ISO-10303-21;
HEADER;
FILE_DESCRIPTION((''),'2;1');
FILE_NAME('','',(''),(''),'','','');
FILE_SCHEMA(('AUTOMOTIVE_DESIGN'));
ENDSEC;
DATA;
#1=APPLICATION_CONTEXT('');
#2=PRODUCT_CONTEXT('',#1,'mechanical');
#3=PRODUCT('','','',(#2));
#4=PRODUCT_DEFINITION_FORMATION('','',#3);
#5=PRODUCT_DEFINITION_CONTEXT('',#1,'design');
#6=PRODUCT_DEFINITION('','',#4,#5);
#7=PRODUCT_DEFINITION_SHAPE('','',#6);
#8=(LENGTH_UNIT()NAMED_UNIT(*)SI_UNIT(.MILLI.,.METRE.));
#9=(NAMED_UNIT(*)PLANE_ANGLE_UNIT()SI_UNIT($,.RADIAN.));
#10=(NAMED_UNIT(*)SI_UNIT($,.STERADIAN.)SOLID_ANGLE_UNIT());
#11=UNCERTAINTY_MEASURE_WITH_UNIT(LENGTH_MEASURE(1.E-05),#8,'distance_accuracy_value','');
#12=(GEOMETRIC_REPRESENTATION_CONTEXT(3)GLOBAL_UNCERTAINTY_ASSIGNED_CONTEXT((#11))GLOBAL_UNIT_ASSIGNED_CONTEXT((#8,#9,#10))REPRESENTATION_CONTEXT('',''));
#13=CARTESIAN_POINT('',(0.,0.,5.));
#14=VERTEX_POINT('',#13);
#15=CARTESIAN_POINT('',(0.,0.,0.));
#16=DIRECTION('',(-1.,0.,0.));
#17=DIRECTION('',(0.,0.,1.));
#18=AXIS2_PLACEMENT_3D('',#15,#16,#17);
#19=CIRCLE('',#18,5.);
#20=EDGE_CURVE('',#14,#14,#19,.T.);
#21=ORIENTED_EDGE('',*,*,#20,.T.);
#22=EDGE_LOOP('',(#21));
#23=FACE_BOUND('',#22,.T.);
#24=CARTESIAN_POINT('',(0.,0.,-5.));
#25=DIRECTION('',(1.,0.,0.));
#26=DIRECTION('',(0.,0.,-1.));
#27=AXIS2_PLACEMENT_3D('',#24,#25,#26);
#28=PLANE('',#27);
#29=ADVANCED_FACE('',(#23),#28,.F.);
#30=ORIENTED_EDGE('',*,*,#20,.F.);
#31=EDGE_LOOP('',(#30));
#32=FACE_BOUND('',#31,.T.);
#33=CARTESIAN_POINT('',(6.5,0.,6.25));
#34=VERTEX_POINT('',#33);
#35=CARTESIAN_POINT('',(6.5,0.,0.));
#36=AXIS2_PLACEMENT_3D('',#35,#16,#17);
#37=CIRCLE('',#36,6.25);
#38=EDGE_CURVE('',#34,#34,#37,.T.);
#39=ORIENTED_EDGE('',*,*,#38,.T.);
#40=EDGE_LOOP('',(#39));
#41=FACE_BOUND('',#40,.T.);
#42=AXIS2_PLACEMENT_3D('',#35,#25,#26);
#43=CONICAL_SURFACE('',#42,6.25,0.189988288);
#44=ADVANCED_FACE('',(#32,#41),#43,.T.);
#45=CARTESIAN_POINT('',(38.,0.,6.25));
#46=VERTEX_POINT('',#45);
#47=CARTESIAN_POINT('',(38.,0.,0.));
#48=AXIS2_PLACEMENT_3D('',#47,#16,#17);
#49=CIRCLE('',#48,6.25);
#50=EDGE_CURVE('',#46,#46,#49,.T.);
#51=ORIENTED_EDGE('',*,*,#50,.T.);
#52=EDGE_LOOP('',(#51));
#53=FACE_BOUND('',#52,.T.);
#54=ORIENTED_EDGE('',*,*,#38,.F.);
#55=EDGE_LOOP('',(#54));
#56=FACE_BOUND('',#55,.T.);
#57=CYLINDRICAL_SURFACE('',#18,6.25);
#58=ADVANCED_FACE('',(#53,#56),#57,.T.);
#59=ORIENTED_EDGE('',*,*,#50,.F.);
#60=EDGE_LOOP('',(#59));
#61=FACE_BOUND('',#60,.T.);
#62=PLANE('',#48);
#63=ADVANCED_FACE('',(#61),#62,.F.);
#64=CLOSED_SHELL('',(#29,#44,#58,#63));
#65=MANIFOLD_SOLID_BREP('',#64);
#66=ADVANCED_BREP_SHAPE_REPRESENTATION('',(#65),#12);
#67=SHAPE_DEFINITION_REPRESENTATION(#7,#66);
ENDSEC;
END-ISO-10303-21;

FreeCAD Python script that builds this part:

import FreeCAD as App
import Part
import Sketcher
from FreeCAD import Vector
Q = App.Units.Quantity


def add_polygon(sketch, points):
    """Adds a closed chain of lines whose ends are joined by coincident constraints."""
    first, n = sketch.GeometryCount, len(points)
    for a, b in zip(points, points[1:] + points[:1]):
        sketch.addGeometry(Part.LineSegment(App.Vector(*a, 0), App.Vector(*b, 0)), False)
    for i in range(n):
        sketch.addConstraint(Sketcher.Constraint("Coincident", first + i, 2, first + (i + 1) % n, 1))

doc = App.newDocument("Part")
body = doc.addObject("PartDesign::Body", "Body")

sketch1 = body.newObject("Sketcher::SketchObject", "Sketch")
sketch1.AttachmentSupport = (doc.getObject("XZ_Plane"), [""])
sketch1.MapMode = "FlatFace"
add_polygon(sketch1, [(0, 0), (38, 0), (38, -6), (6, -6), (0, -5)])
sketch1.addConstraint([
    Sketcher.Constraint("Horizontal", 0),
    Sketcher.Constraint("Vertical", 1),
    Sketcher.Constraint("Horizontal", 2),
    Sketcher.Constraint("Vertical", 4),
    Sketcher.Constraint("Coincident", 4, 2, -1, 1),
    Sketcher.Constraint("DistanceX", 0, 1, 0, 2, Q("38 mm")),
    Sketcher.Constraint("DistanceY", 4, 1, 4, 2, Q("5 mm")),
    Sketcher.Constraint("DistanceX", 2, 2, 2, 1, Q("31.5 mm")),
    Sketcher.Constraint("DistanceY", 1, 2, 1, 1, Q("6.25 mm")),
])
revolution = body.newObject("PartDesign::Revolution", "Revolution")
revolution.Profile = sketch1
revolution.ReferenceAxis = (sketch1, ["H_Axis"])
revolution.Angle = 360

doc.recompute()
